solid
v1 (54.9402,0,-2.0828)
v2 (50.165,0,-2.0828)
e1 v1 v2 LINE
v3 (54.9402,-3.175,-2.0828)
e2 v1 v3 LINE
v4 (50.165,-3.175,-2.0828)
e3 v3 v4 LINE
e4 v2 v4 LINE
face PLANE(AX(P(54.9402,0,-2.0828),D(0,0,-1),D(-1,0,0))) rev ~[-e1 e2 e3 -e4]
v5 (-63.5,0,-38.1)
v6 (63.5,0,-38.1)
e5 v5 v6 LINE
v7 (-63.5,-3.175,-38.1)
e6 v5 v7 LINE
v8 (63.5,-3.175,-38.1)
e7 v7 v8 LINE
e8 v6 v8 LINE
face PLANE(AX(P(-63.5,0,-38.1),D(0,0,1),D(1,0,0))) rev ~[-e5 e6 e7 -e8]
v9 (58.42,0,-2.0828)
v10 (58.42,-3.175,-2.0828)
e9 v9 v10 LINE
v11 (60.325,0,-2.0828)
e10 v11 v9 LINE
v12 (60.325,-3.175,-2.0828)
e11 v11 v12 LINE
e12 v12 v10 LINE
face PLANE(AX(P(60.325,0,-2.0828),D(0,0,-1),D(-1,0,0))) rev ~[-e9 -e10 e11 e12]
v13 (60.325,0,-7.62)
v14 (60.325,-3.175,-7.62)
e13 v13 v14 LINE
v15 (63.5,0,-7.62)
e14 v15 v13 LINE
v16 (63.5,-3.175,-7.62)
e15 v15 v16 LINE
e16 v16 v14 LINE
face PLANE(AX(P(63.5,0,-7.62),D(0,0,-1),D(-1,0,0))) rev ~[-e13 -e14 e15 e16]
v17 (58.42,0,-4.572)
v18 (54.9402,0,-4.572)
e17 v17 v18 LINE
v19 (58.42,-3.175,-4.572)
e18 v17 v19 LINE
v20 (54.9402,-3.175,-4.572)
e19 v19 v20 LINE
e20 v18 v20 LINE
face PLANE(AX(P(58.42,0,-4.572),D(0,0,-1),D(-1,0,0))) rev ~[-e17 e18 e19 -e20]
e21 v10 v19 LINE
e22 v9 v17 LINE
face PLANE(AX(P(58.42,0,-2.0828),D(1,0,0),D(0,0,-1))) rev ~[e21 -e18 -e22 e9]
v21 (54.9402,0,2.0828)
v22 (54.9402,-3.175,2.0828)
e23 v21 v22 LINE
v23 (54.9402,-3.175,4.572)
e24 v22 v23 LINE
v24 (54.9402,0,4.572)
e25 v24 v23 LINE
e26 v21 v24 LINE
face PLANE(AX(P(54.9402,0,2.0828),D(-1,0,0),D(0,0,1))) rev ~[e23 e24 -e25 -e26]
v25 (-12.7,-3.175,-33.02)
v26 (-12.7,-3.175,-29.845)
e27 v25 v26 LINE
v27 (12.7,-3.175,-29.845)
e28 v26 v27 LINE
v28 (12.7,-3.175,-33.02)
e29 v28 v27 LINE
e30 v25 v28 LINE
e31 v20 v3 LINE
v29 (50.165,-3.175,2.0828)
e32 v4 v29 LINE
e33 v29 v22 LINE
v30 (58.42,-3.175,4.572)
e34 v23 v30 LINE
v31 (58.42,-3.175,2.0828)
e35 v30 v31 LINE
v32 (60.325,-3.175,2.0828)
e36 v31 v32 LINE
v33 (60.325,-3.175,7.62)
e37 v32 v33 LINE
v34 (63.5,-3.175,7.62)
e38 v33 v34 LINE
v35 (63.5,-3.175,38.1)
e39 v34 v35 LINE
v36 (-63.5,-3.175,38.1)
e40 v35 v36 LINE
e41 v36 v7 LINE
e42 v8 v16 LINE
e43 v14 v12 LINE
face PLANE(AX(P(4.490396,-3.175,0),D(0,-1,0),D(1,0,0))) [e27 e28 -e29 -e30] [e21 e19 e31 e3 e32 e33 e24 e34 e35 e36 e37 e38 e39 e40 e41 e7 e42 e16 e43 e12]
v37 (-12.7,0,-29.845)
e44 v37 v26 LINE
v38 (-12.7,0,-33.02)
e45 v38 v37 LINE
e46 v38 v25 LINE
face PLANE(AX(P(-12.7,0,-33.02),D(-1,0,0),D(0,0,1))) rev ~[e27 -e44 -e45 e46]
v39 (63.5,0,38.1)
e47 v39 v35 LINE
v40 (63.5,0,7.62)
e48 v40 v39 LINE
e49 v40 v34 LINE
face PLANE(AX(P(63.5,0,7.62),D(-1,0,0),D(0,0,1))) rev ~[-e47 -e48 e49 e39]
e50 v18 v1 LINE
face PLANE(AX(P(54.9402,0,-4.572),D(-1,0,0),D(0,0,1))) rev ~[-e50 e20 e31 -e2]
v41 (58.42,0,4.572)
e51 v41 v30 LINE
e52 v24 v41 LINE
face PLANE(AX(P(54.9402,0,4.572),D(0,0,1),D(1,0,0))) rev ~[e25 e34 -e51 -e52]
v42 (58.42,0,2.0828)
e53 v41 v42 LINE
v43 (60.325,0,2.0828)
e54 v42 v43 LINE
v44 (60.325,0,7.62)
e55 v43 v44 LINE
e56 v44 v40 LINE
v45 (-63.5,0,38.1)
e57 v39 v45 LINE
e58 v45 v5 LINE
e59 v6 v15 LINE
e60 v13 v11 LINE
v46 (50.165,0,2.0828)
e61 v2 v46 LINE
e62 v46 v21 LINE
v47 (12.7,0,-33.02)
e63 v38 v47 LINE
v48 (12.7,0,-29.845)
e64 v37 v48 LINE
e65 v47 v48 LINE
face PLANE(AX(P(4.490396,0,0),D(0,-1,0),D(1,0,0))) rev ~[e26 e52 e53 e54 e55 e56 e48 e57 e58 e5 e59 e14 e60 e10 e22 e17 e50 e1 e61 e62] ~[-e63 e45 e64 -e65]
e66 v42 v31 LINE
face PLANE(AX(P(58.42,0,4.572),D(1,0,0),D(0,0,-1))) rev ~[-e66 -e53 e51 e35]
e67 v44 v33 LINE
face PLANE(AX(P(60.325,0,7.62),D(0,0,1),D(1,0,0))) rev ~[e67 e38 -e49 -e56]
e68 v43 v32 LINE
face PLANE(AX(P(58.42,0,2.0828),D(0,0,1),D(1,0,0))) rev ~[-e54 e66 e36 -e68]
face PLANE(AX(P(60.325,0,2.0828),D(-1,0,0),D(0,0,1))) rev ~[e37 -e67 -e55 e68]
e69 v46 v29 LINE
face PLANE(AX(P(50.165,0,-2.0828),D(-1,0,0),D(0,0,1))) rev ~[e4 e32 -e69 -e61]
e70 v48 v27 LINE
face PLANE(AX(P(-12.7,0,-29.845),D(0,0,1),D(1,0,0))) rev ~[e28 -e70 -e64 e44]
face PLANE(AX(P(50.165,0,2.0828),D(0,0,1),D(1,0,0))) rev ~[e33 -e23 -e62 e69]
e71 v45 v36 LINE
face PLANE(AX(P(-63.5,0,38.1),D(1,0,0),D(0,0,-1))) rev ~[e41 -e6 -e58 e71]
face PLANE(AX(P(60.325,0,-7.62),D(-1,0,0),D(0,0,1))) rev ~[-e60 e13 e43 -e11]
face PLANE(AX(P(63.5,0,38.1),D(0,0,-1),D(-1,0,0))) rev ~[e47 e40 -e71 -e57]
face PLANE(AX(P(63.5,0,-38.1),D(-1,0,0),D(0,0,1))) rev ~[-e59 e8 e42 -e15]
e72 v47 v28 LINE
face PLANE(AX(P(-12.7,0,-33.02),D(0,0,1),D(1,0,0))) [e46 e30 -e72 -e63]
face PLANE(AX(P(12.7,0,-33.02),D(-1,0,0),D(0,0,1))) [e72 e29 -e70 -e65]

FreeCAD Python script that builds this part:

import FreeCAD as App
import Part
import Sketcher
from FreeCAD import Vector
Q = App.Units.Quantity

doc = App.newDocument("Part")
body = doc.addObject("PartDesign::Body", "Body")

sketch1 = body.newObject("Sketcher::SketchObject", "Sketch")
sketch1.AttachmentSupport = (doc.getObject("XZ_Plane"), [""])
sketch1.MapMode = "FlatFace"
sketch1.addGeometry(Part.LineSegment(Vector(-63.5, -38.1, 0), Vector(63.5, -38.1, 0)), False)
sketch1.addGeometry(Part.LineSegment(Vector(63.5, -38.1, 0), Vector(63.5, -7.6, 0)), False)
sketch1.addGeometry(Part.LineSegment(Vector(63.5, -7.6, 0), Vector(60.3, -7.6, 0)), False)
sketch1.addGeometry(Part.LineSegment(Vector(60.3, -7.6, 0), Vector(60.3, -2.1, 0)), False)
sketch1.addGeometry(Part.LineSegment(Vector(60.3, -2.1, 0), Vector(58.4, -2.1, 0)), False)
sketch1.addGeometry(Part.LineSegment(Vector(58.4, -2.1, 0), Vector(58.4, -4.6, 0)), False)
sketch1.addGeometry(Part.LineSegment(Vector(58.4, -4.6, 0), Vector(54.9, -4.6, 0)), False)
sketch1.addGeometry(Part.LineSegment(Vector(54.9, -4.6, 0), Vector(54.9, -2.1, 0)), False)
sketch1.addGeometry(Part.LineSegment(Vector(54.9, -2.1, 0), Vector(50.2, -2.1, 0)), False)
sketch1.addGeometry(Part.LineSegment(Vector(50.2, -2.1, 0), Vector(50.2, 2.1, 0)), False)
sketch1.addGeometry(Part.LineSegment(Vector(50.2, 2.1, 0), Vector(54.9, 2.1, 0)), False)
sketch1.addGeometry(Part.LineSegment(Vector(54.9, 2.1, 0), Vector(54.9, 4.6, 0)), False)
sketch1.addGeometry(Part.LineSegment(Vector(54.9, 4.6, 0), Vector(58.4, 4.6, 0)), False)
sketch1.addGeometry(Part.LineSegment(Vector(58.4, 4.6, 0), Vector(58.4, 2.1, 0)), False)
sketch1.addGeometry(Part.LineSegment(Vector(58.4, 2.1, 0), Vector(60.3, 2.1, 0)), False)
sketch1.addGeometry(Part.LineSegment(Vector(60.3, 2.1, 0), Vector(60.3, 7.6, 0)), False)
sketch1.addGeometry(Part.LineSegment(Vector(60.3, 7.6, 0), Vector(63.5, 7.6, 0)), False)
sketch1.addGeometry(Part.LineSegment(Vector(63.5, 7.6, 0), Vector(63.5, 38.1, 0)), False)
sketch1.addGeometry(Part.LineSegment(Vector(63.5, 38.1, 0), Vector(-63.5, 38.1, 0)), False)
sketch1.addGeometry(Part.LineSegment(Vector(-63.5, 38.1, 0), Vector(-63.5, -38.1, 0)), False)
sketch1.addGeometry(Part.LineSegment(Vector(12.7, -33, 0), Vector(-12.7, -33, 0)), False)
sketch1.addGeometry(Part.LineSegment(Vector(-12.7, -33, 0), Vector(-12.7, -29.8, 0)), False)
sketch1.addGeometry(Part.LineSegment(Vector(-12.7, -29.8, 0), Vector(12.7, -29.8, 0)), False)
sketch1.addGeometry(Part.LineSegment(Vector(12.7, -29.8, 0), Vector(12.7, -33, 0)), False)
sketch1.addConstraint(Sketcher.Constraint("Coincident", 0, 2, 1, 1))
sketch1.addConstraint(Sketcher.Constraint("Coincident", 1, 2, 2, 1))
sketch1.addConstraint(Sketcher.Constraint("Coincident", 2, 2, 3, 1))
sketch1.addConstraint(Sketcher.Constraint("Coincident", 3, 2, 4, 1))
sketch1.addConstraint(Sketcher.Constraint("Coincident", 4, 2, 5, 1))
sketch1.addConstraint(Sketcher.Constraint("Coincident", 5, 2, 6, 1))
sketch1.addConstraint(Sketcher.Constraint("Coincident", 6, 2, 7, 1))
sketch1.addConstraint(Sketcher.Constraint("Coincident", 7, 2, 8, 1))
sketch1.addConstraint(Sketcher.Constraint("Coincident", 8, 2, 9, 1))
sketch1.addConstraint(Sketcher.Constraint("Coincident", 9, 2, 10, 1))
sketch1.addConstraint(Sketcher.Constraint("Coincident", 10, 2, 11, 1))
sketch1.addConstraint(Sketcher.Constraint("Coincident", 11, 2, 12, 1))
sketch1.addConstraint(Sketcher.Constraint("Coincident", 12, 2, 13, 1))
sketch1.addConstraint(Sketcher.Constraint("Coincident", 13, 2, 14, 1))
sketch1.addConstraint(Sketcher.Constraint("Coincident", 14, 2, 15, 1))
sketch1.addConstraint(Sketcher.Constraint("Coincident", 15, 2, 16, 1))
sketch1.addConstraint(Sketcher.Constraint("Coincident", 16, 2, 17, 1))
sketch1.addConstraint(Sketcher.Constraint("Coincident", 17, 2, 18, 1))
sketch1.addConstraint(Sketcher.Constraint("Coincident", 18, 2, 19, 1))
sketch1.addConstraint(Sketcher.Constraint("Coincident", 19, 2, 0, 1))
sketch1.addConstraint(Sketcher.Constraint("Coincident", 20, 2, 21, 1))
sketch1.addConstraint(Sketcher.Constraint("Coincident", 21, 2, 22, 1))
sketch1.addConstraint(Sketcher.Constraint("Coincident", 22, 2, 23, 1))
sketch1.addConstraint(Sketcher.Constraint("Coincident", 23, 2, 20, 1))
sketch1.addConstraint(Sketcher.Constraint("Horizontal", 0))
sketch1.addConstraint(Sketcher.Constraint("Vertical", 1))
sketch1.addConstraint(Sketcher.Constraint("Horizontal", 2))
sketch1.addConstraint(Sketcher.Constraint("Vertical", 3))
sketch1.addConstraint(Sketcher.Constraint("Horizontal", 4))
sketch1.addConstraint(Sketcher.Constraint("Vertical", 5))
sketch1.addConstraint(Sketcher.Constraint("Horizontal", 6))
sketch1.addConstraint(Sketcher.Constraint("Vertical", 7))
sketch1.addConstraint(Sketcher.Constraint("Horizontal", 8))
sketch1.addConstraint(Sketcher.Constraint("Vertical", 9))
sketch1.addConstraint(Sketcher.Constraint("Horizontal", 10))
sketch1.addConstraint(Sketcher.Constraint("Vertical", 11))
sketch1.addConstraint(Sketcher.Constraint("Horizontal", 12))
sketch1.addConstraint(Sketcher.Constraint("Vertical", 13))
sketch1.addConstraint(Sketcher.Constraint("Horizontal", 14))
sketch1.addConstraint(Sketcher.Constraint("Vertical", 15))
sketch1.addConstraint(Sketcher.Constraint("Horizontal", 16))
sketch1.addConstraint(Sketcher.Constraint("Vertical", 17))
sketch1.addConstraint(Sketcher.Constraint("Horizontal", 18))
sketch1.addConstraint(Sketcher.Constraint("Vertical", 19))
sketch1.addConstraint(Sketcher.Constraint("Horizontal", 20))
sketch1.addConstraint(Sketcher.Constraint("Vertical", 21))
sketch1.addConstraint(Sketcher.Constraint("Horizontal", 22))
sketch1.addConstraint(Sketcher.Constraint("Vertical", 23))
sketch1.addConstraint(Sketcher.Constraint("Symmetric", 0, 2, 18, 2, -1, 1))
sketch1.addConstraint(Sketcher.Constraint("Symmetric", 7, 2, 10, 2, -1))
sketch1.addConstraint(Sketcher.Constraint("Symmetric", 5, 2, 12, 2, -1))
sketch1.addConstraint(Sketcher.Constraint("Symmetric", 3, 2, 14, 2, -1))
sketch1.addConstraint(Sketcher.Constraint("Symmetric", 1, 2, 16, 2, -1))
sketch1.addConstraint(Sketcher.Constraint("Horizontal", 4, 2, 7, 2))
sketch1.addConstraint(Sketcher.Constraint("Equal", 16, 21))
sketch1.addConstraint(Sketcher.Constraint("DistanceX", 0, 1, 0, 2, Q("5 in")))
sketch1.addConstraint(Sketcher.Constraint("DistanceX", 20, 2, 20, 1, Q("1 in")))
sketch1.addConstraint(Sketcher.Constraint("DistanceY", 19, 2, 19, 1, Q("3 in")))
sketch1.addConstraint(Sketcher.Constraint("DistanceY", 1, 1, 1, 2, Q("1.2 in")))
sketch1.addConstraint(Sketcher.Constraint("DistanceX", 19, 2, 20, 2, Q("2 in")))
sketch1.addConstraint(Sketcher.Constraint("DistanceX", -1, 1, 4, 2, Q("2.3 in")))
sketch1.addConstraint(Sketcher.Constraint("DistanceY", 20, 2, -1, 1, Q("1.3 in")))
sketch1.addConstraint(Sketcher.Constraint("DistanceX", 8, 2, 3, 2, Q("0.4 in")))
sketch1.addConstraint(Sketcher.Constraint("DistanceX", 2, 2, 2, 1, Q("0.125 in")))
sketch1.addConstraint(Sketcher.Constraint("DistanceX", 6, 2, 6, 1, Q("0.137 in")))
sketch1.addConstraint(Sketcher.Constraint("DistanceY", 3, 1, 3, 2, Q("0.218 in")))
sketch1.addConstraint(Sketcher.Constraint("DistanceY", 5, 2, 5, 1, Q("0.098 in")))
pad1 = body.newObject("PartDesign::Pad", "Pad")
pad1.Profile = sketch1
pad1.Length = Q("0.125 in")

doc.recompute()
